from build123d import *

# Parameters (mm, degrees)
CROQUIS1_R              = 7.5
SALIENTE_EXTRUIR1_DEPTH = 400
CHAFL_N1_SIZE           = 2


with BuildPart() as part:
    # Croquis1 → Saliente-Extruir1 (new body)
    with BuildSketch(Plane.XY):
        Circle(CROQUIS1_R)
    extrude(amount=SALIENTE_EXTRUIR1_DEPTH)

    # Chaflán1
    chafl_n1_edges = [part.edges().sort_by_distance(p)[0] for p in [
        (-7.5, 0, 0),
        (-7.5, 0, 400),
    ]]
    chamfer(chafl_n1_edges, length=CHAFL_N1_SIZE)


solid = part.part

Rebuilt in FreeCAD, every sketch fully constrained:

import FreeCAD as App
import Part
import Sketcher

V = App.Vector


def edges_at(feature, points):
    """Names of the edges that pass closest to the given points."""
    edges = feature.Shape.Edges
    near = lambda p: min(range(len(edges)), key=lambda i: edges[i].distToShape(Part.Vertex(*p))[0])
    return sorted({f"Edge{near(p) + 1}" for p in points})

doc = App.newDocument("Part")
body = doc.addObject("PartDesign::Body", "Body")

# Sketch on XY plane
sketch1 = body.newObject("Sketcher::SketchObject", "Sketch")
sketch1.AttachmentSupport = (doc.getObject("XY_Plane"), [""])
sketch1.MapMode = "FlatFace"
sketch1.addGeometry(Part.Circle(V(0, 0, 0), V(0, 0, 1), 8), False)
sketch1.addConstraint([
    Sketcher.Constraint("Coincident", 0, 3, -1, 1),
    Sketcher.Constraint("Diameter", 0, 15.0),
])
pad1 = body.newObject("PartDesign::Pad", "Pad")
pad1.Profile = sketch1
pad1.Length = 400
doc.recompute()

chamfer = body.newObject("PartDesign::Chamfer", "Chamfer")
chamfer.Base = (pad1, edges_at(pad1, [(-7.5, 0, 0), (-7.5, 0, 400)]))
chamfer.Size = 2

doc.recompute()
